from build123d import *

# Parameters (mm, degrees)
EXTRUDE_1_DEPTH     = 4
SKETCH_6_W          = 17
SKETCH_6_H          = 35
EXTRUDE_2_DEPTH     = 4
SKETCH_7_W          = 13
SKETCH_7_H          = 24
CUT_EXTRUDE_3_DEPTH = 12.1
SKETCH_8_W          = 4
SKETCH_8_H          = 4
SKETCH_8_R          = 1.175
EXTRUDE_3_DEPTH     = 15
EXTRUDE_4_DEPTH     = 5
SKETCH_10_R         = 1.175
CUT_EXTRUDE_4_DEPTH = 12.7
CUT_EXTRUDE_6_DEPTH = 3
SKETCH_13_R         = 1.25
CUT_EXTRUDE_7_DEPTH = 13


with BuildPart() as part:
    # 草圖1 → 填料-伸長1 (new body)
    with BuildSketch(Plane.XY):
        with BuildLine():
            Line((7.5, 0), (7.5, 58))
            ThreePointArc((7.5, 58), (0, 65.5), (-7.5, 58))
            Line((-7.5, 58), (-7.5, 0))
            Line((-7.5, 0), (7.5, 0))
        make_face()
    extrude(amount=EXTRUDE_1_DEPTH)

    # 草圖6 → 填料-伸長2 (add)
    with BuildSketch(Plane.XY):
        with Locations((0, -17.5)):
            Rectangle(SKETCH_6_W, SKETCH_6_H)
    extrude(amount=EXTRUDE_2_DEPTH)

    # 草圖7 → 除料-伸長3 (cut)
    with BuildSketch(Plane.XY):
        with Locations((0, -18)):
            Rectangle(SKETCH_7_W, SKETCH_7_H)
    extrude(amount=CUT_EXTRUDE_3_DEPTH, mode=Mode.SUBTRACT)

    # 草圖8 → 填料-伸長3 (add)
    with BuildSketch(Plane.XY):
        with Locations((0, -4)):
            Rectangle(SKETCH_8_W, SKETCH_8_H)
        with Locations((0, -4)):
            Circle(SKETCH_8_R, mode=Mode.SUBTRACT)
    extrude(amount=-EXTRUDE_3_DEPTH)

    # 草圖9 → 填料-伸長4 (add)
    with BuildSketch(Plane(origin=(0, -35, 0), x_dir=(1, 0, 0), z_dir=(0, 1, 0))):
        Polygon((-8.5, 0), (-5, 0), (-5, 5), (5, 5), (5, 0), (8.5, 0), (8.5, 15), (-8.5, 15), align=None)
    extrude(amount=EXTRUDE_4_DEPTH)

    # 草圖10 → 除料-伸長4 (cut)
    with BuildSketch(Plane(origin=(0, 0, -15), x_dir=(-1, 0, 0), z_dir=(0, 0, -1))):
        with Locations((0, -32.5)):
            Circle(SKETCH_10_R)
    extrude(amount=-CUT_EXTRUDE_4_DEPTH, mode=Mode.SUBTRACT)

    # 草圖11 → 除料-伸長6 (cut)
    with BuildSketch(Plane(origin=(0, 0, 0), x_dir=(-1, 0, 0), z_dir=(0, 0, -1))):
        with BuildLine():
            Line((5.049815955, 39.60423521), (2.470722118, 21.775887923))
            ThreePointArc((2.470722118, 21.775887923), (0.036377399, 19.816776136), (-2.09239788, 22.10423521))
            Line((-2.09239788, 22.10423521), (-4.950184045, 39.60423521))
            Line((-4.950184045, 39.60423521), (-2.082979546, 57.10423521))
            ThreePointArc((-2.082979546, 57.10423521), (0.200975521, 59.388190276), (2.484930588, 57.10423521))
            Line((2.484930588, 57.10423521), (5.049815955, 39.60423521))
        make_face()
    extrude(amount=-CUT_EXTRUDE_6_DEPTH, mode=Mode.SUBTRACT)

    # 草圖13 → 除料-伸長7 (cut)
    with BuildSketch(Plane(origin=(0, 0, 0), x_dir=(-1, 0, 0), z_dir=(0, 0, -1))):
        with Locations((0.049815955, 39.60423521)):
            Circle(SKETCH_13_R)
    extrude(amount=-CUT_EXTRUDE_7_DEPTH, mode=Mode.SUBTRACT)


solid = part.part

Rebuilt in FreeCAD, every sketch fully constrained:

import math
import FreeCAD as App
import Part
import Sketcher


def add_polygon(sketch, points):
    """Adds a closed chain of lines whose ends are joined by coincident constraints."""
    first, n = sketch.GeometryCount, len(points)
    for a, b in zip(points, points[1:] + points[:1]):
        sketch.addGeometry(Part.LineSegment(App.Vector(*a, 0), App.Vector(*b, 0)), False)
    for i in range(n):
        sketch.addConstraint(Sketcher.Constraint("Coincident", first + i, 2, first + (i + 1) % n, 1))

doc = App.newDocument("Part")
body = doc.addObject("PartDesign::Body", "Body")

# Sketch on XY plane
sketch1 = body.newObject("Sketcher::SketchObject", "Sketch")
sketch1.AttachmentSupport = (doc.getObject("XY_Plane"), [""])
sketch1.MapMode = "FlatFace"
sketch1.addGeometry([
    Part.LineSegment(App.Vector(7.5, 0, 0), App.Vector(7.5, 58, 0)),
    Part.ArcOfCircle(Part.Circle(App.Vector(0, 58, 0), App.Vector(0, 0, 1), 7.5), math.radians(0), math.radians(180)),
    Part.LineSegment(App.Vector(-7.5, 58, 0), App.Vector(-7.5, 0, 0)),
    Part.LineSegment(App.Vector(-7.5, 0, 0), App.Vector(7.5, 0, 0)),
], False)
sketch1.addConstraint([
    Sketcher.Constraint("Tangent", 0, 2, 1, 1),
    Sketcher.Constraint("Tangent", 1, 2, 2, 1),
    Sketcher.Constraint("Coincident", 2, 2, 3, 1),
    Sketcher.Constraint("Coincident", 3, 2, 0, 1),
    Sketcher.Constraint("Vertical", 0),
    Sketcher.Constraint("Vertical", 2),
    Sketcher.Constraint("Horizontal", 3),
    Sketcher.Constraint("Symmetric", 2, 2, 3, 2, -1, 1),
    Sketcher.Constraint("Radius", 1, 7.5),
    Sketcher.Constraint("DistanceY", 0, 1, 0, 2, 58.0),
])
pad1 = body.newObject("PartDesign::Pad", "Pad")
pad1.Profile = sketch1
pad1.Length = 4

# Sketch on XY plane
sketch2 = body.newObject("Sketcher::SketchObject", "Sketch001")
sketch2.AttachmentSupport = (doc.getObject("XY_Plane"), [""])
sketch2.MapMode = "FlatFace"
add_polygon(sketch2, [(-8.5, 0), (-8.5, -35), (8.5, -35), (8.5, 0)])  # lines 0-3
sketch2.addConstraint([
    Sketcher.Constraint("Vertical", 0),
    Sketcher.Constraint("Horizontal", 1),
    Sketcher.Constraint("Vertical", 2),
    Sketcher.Constraint("Horizontal", 3),
    Sketcher.Constraint("Symmetric", 2, 2, 3, 2, -1, 1),
    Sketcher.Constraint("DistanceX", 1, 1, 1, 2, 17.0),
    Sketcher.Constraint("DistanceY", 0, 2, 0, 1, 35.0),
])
pad2 = body.newObject("PartDesign::Pad", "Pad001")
pad2.Profile = sketch2
pad2.Length = 4

# Sketch on XY plane
sketch3 = body.newObject("Sketcher::SketchObject", "Sketch002")
sketch3.AttachmentSupport = (doc.getObject("XY_Plane"), [""])
sketch3.MapMode = "FlatFace"
add_polygon(sketch3, [(-6.5, -6), (-6.5, -30), (6.5, -30), (6.5, -6)])  # lines 0-3
sketch3.addConstraint([
    Sketcher.Constraint("Vertical", 0),
    Sketcher.Constraint("Horizontal", 1),
    Sketcher.Constraint("Vertical", 2),
    Sketcher.Constraint("Horizontal", 3),
    Sketcher.Constraint("DistanceX", 1, 1, 1, 2, 13.0),
    Sketcher.Constraint("DistanceY", 0, 2, 0, 1, 24.0),
    Sketcher.Constraint("DistanceY", 0, 2, -1, 1, 30.0),
    Sketcher.Constraint("DistanceX", 0, 2, -1, 1, 6.5),
])
pocket1 = body.newObject("PartDesign::Pocket", "Pocket")
pocket1.Profile = sketch3
pocket1.Length = 12.1
pocket1.Reversed = True

# Sketch on XY plane
sketch4 = body.newObject("Sketcher::SketchObject", "Sketch003")
sketch4.AttachmentSupport = (doc.getObject("XY_Plane"), [""])
sketch4.MapMode = "FlatFace"
add_polygon(sketch4, [(-2, -2), (-2, -6), (2, -6), (2, -2)])  # lines 0-3
sketch4.addGeometry(Part.Circle(App.Vector(0, -4, 0), App.Vector(0, 0, 1), 1.175), False)  # 4
sketch4.addConstraint([
    Sketcher.Constraint("Vertical", 0),
    Sketcher.Constraint("Horizontal", 1),
    Sketcher.Constraint("Vertical", 2),
    Sketcher.Constraint("Horizontal", 3),
    Sketcher.Constraint("PointOnObject", 4, 3, -2),
    Sketcher.Constraint("Equal", 3, 0),
    Sketcher.Constraint("Diameter", 4, 2.35),
    Sketcher.Constraint("DistanceX", 1, 1, 1, 2, 4.0),
    Sketcher.Constraint("DistanceY", 4, 3, -1, 1, 4.0),
    Sketcher.Constraint("DistanceX", 0, 2, -1, 1, 2.0),
    Sketcher.Constraint("DistanceY", 0, 2, -1, 1, 6.0),
])
pad3 = body.newObject("PartDesign::Pad", "Pad002")
pad3.Profile = sketch4
pad3.Length = 15
pad3.Reversed = True

# Sketch on XZ plane
sketch5 = body.newObject("Sketcher::SketchObject", "Sketch004")
sketch5.AttachmentSupport = (doc.getObject("XZ_Plane"), [""])
sketch5.MapMode = "FlatFace"
sketch5.AttachmentOffset = App.Placement(App.Vector(0, 0, 35), App.Rotation())
add_polygon(sketch5, [(-8.5, 0), (-5, 0), (-5, -5), (5, -5), (5, 0), (8.5, 0), (8.5, -15), (-8.5, -15)])  # lines 0-7
sketch5.addConstraint([
    Sketcher.Constraint("Horizontal", 0),
    Sketcher.Constraint("Vertical", 1),
    Sketcher.Constraint("Horizontal", 2),
    Sketcher.Constraint("Vertical", 3),
    Sketcher.Constraint("Horizontal", 4),
    Sketcher.Constraint("Vertical", 5),
    Sketcher.Constraint("Horizontal", 6),
    Sketcher.Constraint("Vertical", 7),
    Sketcher.Constraint("Symmetric", 0, 2, 3, 2, -1, 1),
    Sketcher.Constraint("Symmetric", 4, 2, 7, 2, -2),
    Sketcher.Constraint("DistanceX", 2, 1, 2, 2, 10.0),
    Sketcher.Constraint("DistanceX", 6, 2, 6, 1, 17.0),
    Sketcher.Constraint("DistanceY", 1, 2, 1, 1, 5.0),
    Sketcher.Constraint("DistanceY", 5, 2, 5, 1, 15.0),
])
pad4 = body.newObject("PartDesign::Pad", "Pad003")
pad4.Profile = sketch5
pad4.Length = 5
pad4.Reversed = True

# Sketch on XY plane
sketch6 = body.newObject("Sketcher::SketchObject", "Sketch005")
sketch6.AttachmentSupport = (doc.getObject("XY_Plane"), [""])
sketch6.MapMode = "FlatFace"
sketch6.AttachmentOffset = App.Placement(App.Vector(0, 0, -15), App.Rotation())
sketch6.addGeometry(Part.Circle(App.Vector(0, -32.5, 0), App.Vector(0, 0, 1), 1.175), False)
sketch6.addConstraint([
    Sketcher.Constraint("PointOnObject", 0, 3, -2),
    Sketcher.Constraint("Diameter", 0, 2.35),
    Sketcher.Constraint("DistanceY", 0, 3, -1, 1, 32.5),
])
pocket2 = body.newObject("PartDesign::Pocket", "Pocket001")
pocket2.Profile = sketch6
pocket2.Length = 12.7
pocket2.Reversed = True

# Sketch on XY plane
sketch7 = body.newObject("Sketcher::SketchObject", "Sketch006")
sketch7.AttachmentSupport = (doc.getObject("XY_Plane"), [""])
sketch7.MapMode = "FlatFace"
sketch7.addGeometry([
    Part.LineSegment(App.Vector(-2.470722, 21.775888, 0), App.Vector(-5.049816, 39.604235, 0)),  # 0
    Part.LineSegment(App.Vector(-5.049816, 39.604235, 0), App.Vector(-2.484931, 57.104235, 0)),  # 1
    Part.ArcOfCircle(Part.Circle(App.Vector(-0.200976, 57.104235, 0), App.Vector(0, 0, 1), 2.283955), math.radians(0), math.radians(180)),  # 2
    Part.LineSegment(App.Vector(2.08298, 57.104235, 0), App.Vector(4.950184, 39.604235, 0)),  # 3
    Part.LineSegment(App.Vector(4.950184, 39.604235, 0), App.Vector(2.092398, 22.104235, 0)),  # 4
    Part.ArcOfCircle(Part.Circle(App.Vector(-0.200976, 22.104235, 0), App.Vector(0, 0, 1), 2.293373), math.radians(-171.768551), math.radians(0)),  # 5
], False)
sketch7.addConstraint([
    Sketcher.Constraint("Coincident", 0, 2, 1, 1),
    Sketcher.Constraint("Coincident", 1, 2, 2, 2),
    Sketcher.Constraint("Coincident", 2, 1, 3, 1),
    Sketcher.Constraint("Coincident", 3, 2, 4, 1),
    Sketcher.Constraint("Coincident", 4, 2, 5, 2),
    Sketcher.Constraint("Tangent", 5, 1, 0, 1),
    Sketcher.Constraint("Horizontal", 2, 3, 1, 2),
    Sketcher.Constraint("Horizontal", 1, 2, 2, 1),
    Sketcher.Constraint("Horizontal", 0, 2, 3, 2),
    Sketcher.Constraint("Horizontal", 5, 3, 4, 2),
    Sketcher.Constraint("Vertical", 2, 3, 5, 3),
    Sketcher.Constraint("DistanceY", 5, 3, 2, 3, 35.0),
    Sketcher.Constraint("DistanceX", 0, 2, 3, 2, 10.0),
    Sketcher.Constraint("DistanceY", 0, 2, 2, 3, 17.5),
    Sketcher.Constraint("Radius", 2, 2.283955),
    Sketcher.Constraint("Radius", 5, 2.293373),
    Sketcher.Constraint("Distance", 0, 18.01393),
    Sketcher.Constraint("DistanceX", 1, 2, -1, 1, 2.484931),
    Sketcher.Constraint("DistanceY", -1, 1, 2, 3, 57.104235),
])
pocket3 = body.newObject("PartDesign::Pocket", "Pocket002")
pocket3.Profile = sketch7
pocket3.Length = 3
pocket3.Reversed = True

# Sketch on XY plane
sketch8 = body.newObject("Sketcher::SketchObject", "Sketch007")
sketch8.AttachmentSupport = (doc.getObject("XY_Plane"), [""])
sketch8.MapMode = "FlatFace"
sketch8.addGeometry(Part.Circle(App.Vector(-0.049816, 39.604235, 0), App.Vector(0, 0, 1), 1.25), False)
sketch8.addConstraint([
    Sketcher.Constraint("Diameter", 0, 2.5),
    Sketcher.Constraint("DistanceX", 0, 3, -1, 1, 0.049816),
    Sketcher.Constraint("DistanceY", -1, 1, 0, 3, 39.604235),
])
pocket4 = body.newObject("PartDesign::Pocket", "Pocket003")
pocket4.Profile = sketch8
pocket4.Length = 13
pocket4.Reversed = True

doc.recompute()
